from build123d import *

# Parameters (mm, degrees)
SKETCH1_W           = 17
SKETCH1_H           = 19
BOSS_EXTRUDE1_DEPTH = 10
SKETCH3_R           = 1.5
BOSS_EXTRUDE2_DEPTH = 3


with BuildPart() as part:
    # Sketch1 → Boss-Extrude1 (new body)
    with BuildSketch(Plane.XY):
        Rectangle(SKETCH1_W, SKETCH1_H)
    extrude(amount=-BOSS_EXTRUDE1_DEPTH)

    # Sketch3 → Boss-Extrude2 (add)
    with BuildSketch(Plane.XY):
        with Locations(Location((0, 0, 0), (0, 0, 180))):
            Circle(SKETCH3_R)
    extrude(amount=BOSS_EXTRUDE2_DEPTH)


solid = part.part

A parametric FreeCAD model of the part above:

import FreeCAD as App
import Part
import Sketcher

V = App.Vector
Q = App.Units.Quantity


def add_polygon(sketch, points):
    """Adds a closed chain of lines whose ends are joined by coincident constraints."""
    first, n = sketch.GeometryCount, len(points)
    for a, b in zip(points, points[1:] + points[:1]):
        sketch.addGeometry(Part.LineSegment(App.Vector(*a, 0), App.Vector(*b, 0)), False)
    for i in range(n):
        sketch.addConstraint(Sketcher.Constraint("Coincident", first + i, 2, first + (i + 1) % n, 1))

doc = App.newDocument("Part")
body = doc.addObject("PartDesign::Body", "Body")

# Sketch on XY plane
sketch1 = body.newObject("Sketcher::SketchObject", "Sketch")
sketch1.AttachmentSupport = (doc.getObject("XY_Plane"), [""])
sketch1.MapMode = "FlatFace"
add_polygon(sketch1, [(-8, 10), (-8, -10), (8, -10), (8, 10)])  # lines 0-3
sketch1.addConstraint([
    Sketcher.Constraint("Vertical", 0),
    Sketcher.Constraint("Horizontal", 1),
    Sketcher.Constraint("Vertical", 2),
    Sketcher.Constraint("Horizontal", 3),
    Sketcher.Constraint("Symmetric", 0, 2, 2, 2, -1, 1),
    Sketcher.Constraint("DistanceX", 1, 1, 1, 2, Q("17 mm")),
    Sketcher.Constraint("DistanceY", 0, 2, 0, 1, Q("19 mm")),
])
pad1 = body.newObject("PartDesign::Pad", "Pad")
pad1.Profile = sketch1
pad1.Length = 10
pad1.Reversed = True

# Sketch on XY plane
sketch2 = body.newObject("Sketcher::SketchObject", "Sketch001")
sketch2.AttachmentSupport = (doc.getObject("XY_Plane"), [""])
sketch2.MapMode = "FlatFace"
sketch2.addGeometry(Part.Circle(V(0, 0, 0), V(0, 0, 1), 1.5), False)
sketch2.addConstraint([
    Sketcher.Constraint("Coincident", 0, 3, -1, 1),
    Sketcher.Constraint("Diameter", 0, Q("3 mm")),
])
pad2 = body.newObject("PartDesign::Pad", "Pad001")
pad2.Profile = sketch2
pad2.Length = 3

doc.recompute()
